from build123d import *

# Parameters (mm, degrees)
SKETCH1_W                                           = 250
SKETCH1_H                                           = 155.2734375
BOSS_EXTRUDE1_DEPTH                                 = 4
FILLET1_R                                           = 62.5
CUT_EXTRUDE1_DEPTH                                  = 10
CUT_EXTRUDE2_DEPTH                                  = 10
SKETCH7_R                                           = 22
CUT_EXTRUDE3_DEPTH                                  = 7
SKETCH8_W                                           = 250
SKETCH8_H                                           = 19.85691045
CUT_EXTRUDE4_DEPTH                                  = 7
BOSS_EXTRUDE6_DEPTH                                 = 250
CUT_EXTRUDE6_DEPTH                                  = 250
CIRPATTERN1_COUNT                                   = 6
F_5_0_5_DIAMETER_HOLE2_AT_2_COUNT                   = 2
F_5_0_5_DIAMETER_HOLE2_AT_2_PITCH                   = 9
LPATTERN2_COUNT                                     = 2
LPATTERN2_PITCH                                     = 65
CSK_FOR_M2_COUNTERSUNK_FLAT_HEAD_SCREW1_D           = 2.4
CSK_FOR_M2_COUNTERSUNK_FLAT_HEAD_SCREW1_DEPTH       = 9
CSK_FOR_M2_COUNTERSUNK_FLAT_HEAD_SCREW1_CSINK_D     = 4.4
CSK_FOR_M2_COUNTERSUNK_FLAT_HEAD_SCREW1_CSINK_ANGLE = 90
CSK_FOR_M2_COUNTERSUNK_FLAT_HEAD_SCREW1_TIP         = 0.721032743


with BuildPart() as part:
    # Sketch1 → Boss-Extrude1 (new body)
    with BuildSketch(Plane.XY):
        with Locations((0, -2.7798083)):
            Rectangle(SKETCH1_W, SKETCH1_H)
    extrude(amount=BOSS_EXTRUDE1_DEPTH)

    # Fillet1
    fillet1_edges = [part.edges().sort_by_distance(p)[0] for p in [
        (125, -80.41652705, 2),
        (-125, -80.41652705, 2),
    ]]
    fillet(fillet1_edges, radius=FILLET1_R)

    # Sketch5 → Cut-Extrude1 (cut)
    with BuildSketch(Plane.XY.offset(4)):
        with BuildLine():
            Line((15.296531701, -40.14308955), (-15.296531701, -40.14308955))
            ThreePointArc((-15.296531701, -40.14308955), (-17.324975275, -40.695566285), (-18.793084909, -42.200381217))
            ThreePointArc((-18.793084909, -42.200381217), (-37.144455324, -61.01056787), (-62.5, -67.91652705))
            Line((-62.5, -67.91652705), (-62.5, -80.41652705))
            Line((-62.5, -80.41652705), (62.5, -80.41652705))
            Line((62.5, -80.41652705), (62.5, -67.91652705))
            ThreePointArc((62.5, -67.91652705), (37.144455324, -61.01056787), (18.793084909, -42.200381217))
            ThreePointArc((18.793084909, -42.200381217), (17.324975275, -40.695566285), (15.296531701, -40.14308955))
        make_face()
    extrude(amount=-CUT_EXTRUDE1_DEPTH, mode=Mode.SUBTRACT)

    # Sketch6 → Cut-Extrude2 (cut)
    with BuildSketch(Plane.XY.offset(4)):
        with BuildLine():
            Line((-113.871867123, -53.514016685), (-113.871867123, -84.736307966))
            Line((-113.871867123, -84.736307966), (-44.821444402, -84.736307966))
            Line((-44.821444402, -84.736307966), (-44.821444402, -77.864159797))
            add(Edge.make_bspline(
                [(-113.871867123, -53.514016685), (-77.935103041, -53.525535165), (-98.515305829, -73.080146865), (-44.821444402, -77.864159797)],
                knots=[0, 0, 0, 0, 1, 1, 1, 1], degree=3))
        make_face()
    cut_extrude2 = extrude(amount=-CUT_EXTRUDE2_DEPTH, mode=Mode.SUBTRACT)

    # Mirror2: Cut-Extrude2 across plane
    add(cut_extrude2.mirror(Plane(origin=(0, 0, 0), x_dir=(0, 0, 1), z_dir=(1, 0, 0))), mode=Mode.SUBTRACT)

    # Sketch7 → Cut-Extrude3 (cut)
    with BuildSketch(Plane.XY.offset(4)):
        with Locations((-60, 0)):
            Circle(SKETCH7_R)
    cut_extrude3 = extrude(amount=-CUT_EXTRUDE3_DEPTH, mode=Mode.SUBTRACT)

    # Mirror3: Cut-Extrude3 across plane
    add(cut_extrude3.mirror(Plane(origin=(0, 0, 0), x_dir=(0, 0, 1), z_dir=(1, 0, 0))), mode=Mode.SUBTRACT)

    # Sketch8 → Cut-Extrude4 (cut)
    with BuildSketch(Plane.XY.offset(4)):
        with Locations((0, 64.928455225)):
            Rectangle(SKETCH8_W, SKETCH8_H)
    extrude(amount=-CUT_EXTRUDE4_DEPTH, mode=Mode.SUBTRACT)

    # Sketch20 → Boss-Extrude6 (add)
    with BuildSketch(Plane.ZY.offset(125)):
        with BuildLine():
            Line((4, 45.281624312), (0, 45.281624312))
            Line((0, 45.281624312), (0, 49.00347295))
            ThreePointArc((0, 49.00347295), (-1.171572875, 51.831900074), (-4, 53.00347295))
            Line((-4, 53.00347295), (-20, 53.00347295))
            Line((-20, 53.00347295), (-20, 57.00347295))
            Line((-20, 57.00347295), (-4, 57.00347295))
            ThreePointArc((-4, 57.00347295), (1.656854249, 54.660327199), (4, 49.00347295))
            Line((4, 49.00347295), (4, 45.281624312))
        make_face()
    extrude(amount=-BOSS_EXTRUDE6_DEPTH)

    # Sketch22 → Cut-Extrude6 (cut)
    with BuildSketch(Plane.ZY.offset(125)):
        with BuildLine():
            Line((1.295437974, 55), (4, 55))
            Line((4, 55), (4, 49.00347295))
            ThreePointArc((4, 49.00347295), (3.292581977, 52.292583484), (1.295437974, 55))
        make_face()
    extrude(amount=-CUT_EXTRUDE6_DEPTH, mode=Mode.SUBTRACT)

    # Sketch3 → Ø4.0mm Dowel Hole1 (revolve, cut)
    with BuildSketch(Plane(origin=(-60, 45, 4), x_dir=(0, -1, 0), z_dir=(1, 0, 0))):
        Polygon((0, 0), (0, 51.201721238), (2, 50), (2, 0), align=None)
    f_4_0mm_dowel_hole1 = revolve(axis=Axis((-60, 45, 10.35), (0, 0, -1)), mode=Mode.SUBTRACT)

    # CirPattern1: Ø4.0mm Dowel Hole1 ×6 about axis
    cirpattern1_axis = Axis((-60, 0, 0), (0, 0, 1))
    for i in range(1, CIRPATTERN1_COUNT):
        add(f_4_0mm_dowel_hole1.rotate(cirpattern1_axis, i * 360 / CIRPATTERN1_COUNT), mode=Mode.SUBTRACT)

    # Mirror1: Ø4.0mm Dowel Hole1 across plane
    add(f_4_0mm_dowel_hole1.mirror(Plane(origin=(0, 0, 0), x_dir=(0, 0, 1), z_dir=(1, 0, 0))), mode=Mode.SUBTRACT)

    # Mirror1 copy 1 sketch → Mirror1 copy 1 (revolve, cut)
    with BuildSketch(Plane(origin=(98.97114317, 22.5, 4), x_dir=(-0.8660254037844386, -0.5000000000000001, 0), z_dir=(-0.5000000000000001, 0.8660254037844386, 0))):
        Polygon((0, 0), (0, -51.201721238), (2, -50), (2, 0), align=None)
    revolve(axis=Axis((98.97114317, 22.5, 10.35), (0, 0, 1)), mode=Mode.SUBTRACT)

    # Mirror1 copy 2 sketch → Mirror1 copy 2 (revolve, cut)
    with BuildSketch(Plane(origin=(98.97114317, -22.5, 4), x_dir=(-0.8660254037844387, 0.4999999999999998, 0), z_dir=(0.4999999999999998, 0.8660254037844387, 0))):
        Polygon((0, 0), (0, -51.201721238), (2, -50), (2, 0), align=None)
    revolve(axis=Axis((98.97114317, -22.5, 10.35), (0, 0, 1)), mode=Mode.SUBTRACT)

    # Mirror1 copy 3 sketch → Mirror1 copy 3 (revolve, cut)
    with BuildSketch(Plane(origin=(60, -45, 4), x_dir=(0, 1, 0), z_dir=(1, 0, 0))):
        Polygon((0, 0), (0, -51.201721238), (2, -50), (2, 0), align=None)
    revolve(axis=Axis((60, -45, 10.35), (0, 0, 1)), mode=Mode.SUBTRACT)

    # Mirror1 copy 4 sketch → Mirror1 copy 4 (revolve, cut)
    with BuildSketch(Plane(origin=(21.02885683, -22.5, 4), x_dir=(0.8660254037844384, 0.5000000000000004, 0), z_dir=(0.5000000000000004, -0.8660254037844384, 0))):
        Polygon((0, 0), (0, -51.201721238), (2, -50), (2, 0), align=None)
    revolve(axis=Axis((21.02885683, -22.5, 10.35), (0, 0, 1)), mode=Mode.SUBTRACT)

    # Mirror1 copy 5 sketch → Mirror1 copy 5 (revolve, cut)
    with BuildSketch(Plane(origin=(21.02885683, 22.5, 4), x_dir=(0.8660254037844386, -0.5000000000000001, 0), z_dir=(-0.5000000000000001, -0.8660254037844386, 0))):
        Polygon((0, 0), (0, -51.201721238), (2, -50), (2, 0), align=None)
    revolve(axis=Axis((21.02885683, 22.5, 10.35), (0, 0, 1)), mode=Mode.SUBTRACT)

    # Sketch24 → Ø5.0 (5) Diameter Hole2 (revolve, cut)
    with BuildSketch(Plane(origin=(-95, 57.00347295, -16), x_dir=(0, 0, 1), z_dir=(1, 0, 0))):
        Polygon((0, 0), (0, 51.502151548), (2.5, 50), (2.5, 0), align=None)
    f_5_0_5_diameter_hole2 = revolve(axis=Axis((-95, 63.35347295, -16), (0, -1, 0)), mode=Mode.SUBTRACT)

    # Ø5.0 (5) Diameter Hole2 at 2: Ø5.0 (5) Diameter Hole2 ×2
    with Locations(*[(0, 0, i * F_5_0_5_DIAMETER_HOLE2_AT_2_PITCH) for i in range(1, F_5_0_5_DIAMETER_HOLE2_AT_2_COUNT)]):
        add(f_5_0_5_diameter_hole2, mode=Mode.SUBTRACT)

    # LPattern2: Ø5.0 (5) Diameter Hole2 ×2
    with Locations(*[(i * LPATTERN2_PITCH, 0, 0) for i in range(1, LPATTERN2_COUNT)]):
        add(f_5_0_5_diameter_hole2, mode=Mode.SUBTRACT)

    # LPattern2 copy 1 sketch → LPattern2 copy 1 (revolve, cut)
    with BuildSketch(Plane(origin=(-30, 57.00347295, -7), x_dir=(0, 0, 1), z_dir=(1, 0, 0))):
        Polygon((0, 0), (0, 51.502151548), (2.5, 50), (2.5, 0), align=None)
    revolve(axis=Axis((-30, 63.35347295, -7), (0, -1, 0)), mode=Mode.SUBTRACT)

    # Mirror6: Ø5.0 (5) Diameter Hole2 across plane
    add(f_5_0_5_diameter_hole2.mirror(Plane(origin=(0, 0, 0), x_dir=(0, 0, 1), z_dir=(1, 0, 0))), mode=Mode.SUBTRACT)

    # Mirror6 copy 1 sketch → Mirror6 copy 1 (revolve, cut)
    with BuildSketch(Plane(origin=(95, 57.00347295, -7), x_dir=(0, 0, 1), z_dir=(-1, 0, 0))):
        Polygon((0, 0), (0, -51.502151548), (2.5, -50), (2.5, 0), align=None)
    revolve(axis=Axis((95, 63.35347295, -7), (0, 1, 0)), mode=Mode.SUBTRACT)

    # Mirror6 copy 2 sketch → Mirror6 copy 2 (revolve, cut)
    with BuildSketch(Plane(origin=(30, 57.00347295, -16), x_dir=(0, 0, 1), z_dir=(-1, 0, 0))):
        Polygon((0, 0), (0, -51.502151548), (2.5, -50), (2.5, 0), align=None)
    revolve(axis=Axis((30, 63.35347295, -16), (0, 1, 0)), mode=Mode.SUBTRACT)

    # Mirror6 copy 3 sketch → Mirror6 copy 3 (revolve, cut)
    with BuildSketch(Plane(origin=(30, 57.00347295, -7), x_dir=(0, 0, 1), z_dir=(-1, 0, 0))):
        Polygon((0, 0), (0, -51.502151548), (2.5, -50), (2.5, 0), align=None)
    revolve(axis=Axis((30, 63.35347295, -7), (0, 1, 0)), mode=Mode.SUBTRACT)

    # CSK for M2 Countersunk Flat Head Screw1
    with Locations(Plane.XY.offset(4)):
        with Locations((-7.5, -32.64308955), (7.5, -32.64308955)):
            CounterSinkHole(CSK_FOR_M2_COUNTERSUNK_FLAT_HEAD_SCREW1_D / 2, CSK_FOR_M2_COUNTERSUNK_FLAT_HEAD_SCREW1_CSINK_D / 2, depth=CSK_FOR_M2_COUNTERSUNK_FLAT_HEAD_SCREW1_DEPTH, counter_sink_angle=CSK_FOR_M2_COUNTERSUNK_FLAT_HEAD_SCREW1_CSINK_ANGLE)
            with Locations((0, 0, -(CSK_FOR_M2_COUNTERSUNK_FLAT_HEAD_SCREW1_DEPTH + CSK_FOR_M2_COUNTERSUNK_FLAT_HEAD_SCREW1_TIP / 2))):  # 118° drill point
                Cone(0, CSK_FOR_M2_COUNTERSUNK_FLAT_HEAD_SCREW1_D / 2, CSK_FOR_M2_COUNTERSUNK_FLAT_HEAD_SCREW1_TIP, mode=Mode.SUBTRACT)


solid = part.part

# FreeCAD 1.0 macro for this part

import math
import FreeCAD as App
import Part
import Sketcher
from FreeCAD import Vector
Q = App.Units.Quantity


def edges_at(feature, points):
    """Names of the edges that pass closest to the given points."""
    edges = feature.Shape.Edges
    near = lambda p: min(range(len(edges)), key=lambda i: edges[i].distToShape(Part.Vertex(*p))[0])
    return sorted({f"Edge{near(p) + 1}" for p in points})

doc = App.newDocument("Part")
params = doc.addObject("Spreadsheet::Sheet", "Params")
for row, (alias, value) in enumerate([
    ("sketch1_width", "250 mm"),
    ("pad1_length", "4 mm"),
    ("fillet_radius", "62.5 mm"),
    ("sketch2_radius", "4 mm"),
    ("sketch2_radius2", "50 mm"),
    ("sketch2_width", "125 mm"),
    ("sketch2_height", "12.5 mm"),
    ("pocket1_length", "10 mm"),
    ("pocket2_length", "10 mm"),
    ("sketch4_diameter", "44 mm"),
    ("pocket3_length", "7 mm"),
    ("sketch5_width", "250 mm"),
    ("pocket4_length", "7 mm"),
    ("sketch6_radius", "8 mm"),
    ("sketch6_radius2", "4 mm"),
    ("sketch6_height", "16 mm"),
    ("pad2_length", "250 mm"),
    ("sketch7_radius", "8 mm"),
    ("pocket5_length", "250 mm"),
    ("sketch8_width", "2 mm"),
    ("sketch8_height", "50 mm"),
    ("groove_angle", "360 deg"),
    ("sketch9_width", "2 mm"),
    ("sketch9_height", "50 mm"),
    ("groove2_angle", "360 deg"),
    ("sketch10_width", "2 mm"),
    ("sketch10_height", "50 mm"),
    ("groove3_angle", "360 deg"),
    ("sketch11_width", "2 mm"),
    ("sketch11_height", "50 mm"),
    ("groove4_angle", "360 deg"),
    ("sketch12_width", "2 mm"),
    ("sketch12_height", "50 mm"),
    ("groove5_angle", "360 deg"),
    ("sketch13_width", "2 mm"),
    ("sketch13_height", "50 mm"),
    ("groove6_angle", "360 deg"),
    ("sketch14_width", "50 mm"),
    ("sketch14_height", "2.5 mm"),
    ("groove7_angle", "360 deg"),
    ("linearpattern_pitch", "9 mm"),
    ("linearpattern2_pitch", "65 mm"),
    ("sketch15_width", "50 mm"),
    ("sketch15_height", "2.5 mm"),
    ("groove8_angle", "360 deg"),
    ("sketch16_width", "50 mm"),
    ("sketch16_height", "2.5 mm"),
    ("groove9_angle", "360 deg"),
    ("sketch17_width", "50 mm"),
    ("sketch17_height", "2.5 mm"),
    ("groove10_angle", "360 deg"),
    ("sketch18_width", "50 mm"),
    ("sketch18_height", "2.5 mm"),
    ("groove11_angle", "360 deg"),
    ("sketch19_diameter", "2.4 mm"),
    ("hole_diameter", "2.4 mm"),
    ("hole_depth", "9 mm"),
    ("hole_csink_diameter", "4.4 mm"),
], start=1):
    params.set(f"A{row}", alias)
    params.set(f"B{row}", "=" + value)
    params.setAlias(f"B{row}", alias)

body = doc.addObject("PartDesign::Body", "Body")

# Sketch on XY plane
sketch1 = body.newObject("Sketcher::SketchObject", "Sketch")
sketch1.AttachmentSupport = (doc.getObject("XY_Plane"), [""])
sketch1.MapMode = "FlatFace"
sketch1.addGeometry(Part.LineSegment(Vector(-125, 74.85691, 0), Vector(-125, -80.416527, 0)), False)
sketch1.addGeometry(Part.LineSegment(Vector(-125, -80.416527, 0), Vector(125, -80.416527, 0)), False)
sketch1.addGeometry(Part.LineSegment(Vector(125, -80.416527, 0), Vector(125, 74.85691, 0)), False)
sketch1.addGeometry(Part.LineSegment(Vector(125, 74.85691, 0), Vector(-125, 74.85691, 0)), False)
sketch1.addConstraint(Sketcher.Constraint("Coincident", 0, 2, 1, 1))
sketch1.addConstraint(Sketcher.Constraint("Coincident", 1, 2, 2, 1))
sketch1.addConstraint(Sketcher.Constraint("Coincident", 2, 2, 3, 1))
sketch1.addConstraint(Sketcher.Constraint("Coincident", 3, 2, 0, 1))
sketch1.addConstraint(Sketcher.Constraint("Vertical", 0))
sketch1.addConstraint(Sketcher.Constraint("Horizontal", 1))
sketch1.addConstraint(Sketcher.Constraint("Vertical", 2))
sketch1.addConstraint(Sketcher.Constraint("Horizontal", 3))
sketch1.addConstraint(Sketcher.Constraint("DistanceX", 1, 1, 1, 2, Q("250 mm")))
sketch1.addConstraint(Sketcher.Constraint("DistanceX", 0, 2, -1, 1, Q("125 mm")))
sketch1.addConstraint(Sketcher.Constraint("DistanceY", 0, 2, 0, 1, Q("155.273438 mm")))
sketch1.addConstraint(Sketcher.Constraint("DistanceY", -1, 1, 2, 2, Q("74.85691 mm")))
sketch1.setExpression("Constraints[8]", "Params.sketch1_width")
pad1 = body.newObject("PartDesign::Pad", "Pad")
pad1.Profile = sketch1
pad1.setExpression("Length", "Params.pad1_length")
doc.recompute()

fillet = body.newObject("PartDesign::Fillet", "Fillet")
fillet.Base = (pad1, edges_at(pad1, [(125, -80.417, 2), (-125, -80.417, 2)]))
fillet.setExpression("Radius", "Params.fillet_radius")

# Sketch on XY plane
sketch2 = body.newObject("Sketcher::SketchObject", "Sketch001")
sketch2.AttachmentSupport = (doc.getObject("XY_Plane"), [""])
sketch2.MapMode = "FlatFace"
sketch2.AttachmentOffset = App.Placement(Vector(0, 0, 4), App.Rotation())
sketch2.addGeometry(Part.LineSegment(Vector(15.296532, -40.14309, 0), Vector(-15.296532, -40.14309, 0)), False)
sketch2.addGeometry(Part.ArcOfCircle(Part.Circle(Vector(-15.296532, -44.14309, 0), Vector(0, 0, 1), 4), math.radians(90), math.radians(150.943157)), False)
sketch2.addGeometry(Part.ArcOfCircle(Part.Circle(Vector(-62.5, -17.916527, 0), Vector(0, 0, 1), 50), math.radians(-90), math.radians(-29.056843)), False)
sketch2.addGeometry(Part.LineSegment(Vector(-62.5, -67.916527, 0), Vector(-62.5, -80.416527, 0)), False)
sketch2.addGeometry(Part.LineSegment(Vector(-62.5, -80.416527, 0), Vector(62.5, -80.416527, 0)), False)
sketch2.addGeometry(Part.LineSegment(Vector(62.5, -80.416527, 0), Vector(62.5, -67.916527, 0)), False)
sketch2.addGeometry(Part.ArcOfCircle(Part.Circle(Vector(62.5, -17.916527, 0), Vector(0, 0, 1), 50), math.radians(-150.943157), math.radians(-90)), False)
sketch2.addGeometry(Part.ArcOfCircle(Part.Circle(Vector(15.296532, -44.14309, 0), Vector(0, 0, 1), 4), math.radians(29.056843), math.radians(90)), False)
sketch2.addConstraint(Sketcher.Constraint("Tangent", 0, 2, 1, 1))
sketch2.addConstraint(Sketcher.Constraint("Tangent", 1, 2, 2, 2))
sketch2.addConstraint(Sketcher.Constraint("Coincident", 2, 1, 3, 1))
sketch2.addConstraint(Sketcher.Constraint("Coincident", 3, 2, 4, 1))
sketch2.addConstraint(Sketcher.Constraint("Coincident", 4, 2, 5, 1))
sketch2.addConstraint(Sketcher.Constraint("Coincident", 5, 2, 6, 2))
sketch2.addConstraint(Sketcher.Constraint("Tangent", 6, 1, 7, 1))
sketch2.addConstraint(Sketcher.Constraint("Tangent", 7, 2, 0, 1))
sketch2.addConstraint(Sketcher.Constraint("Horizontal", 0))
sketch2.addConstraint(Sketcher.Constraint("Vertical", 3))
sketch2.addConstraint(Sketcher.Constraint("Horizontal", 4))
sketch2.addConstraint(Sketcher.Constraint("Vertical", 5))
sketch2.addConstraint(Sketcher.Constraint("Equal", 2, 6))
sketch2.addConstraint(Sketcher.Constraint("Equal", 1, 7))
sketch2.addConstraint(Sketcher.Constraint("Symmetric", 2, 3, 6, 3, -2))
sketch2.addConstraint(Sketcher.Constraint("Vertical", 6, 3, 4, 2))
sketch2.addConstraint(Sketcher.Constraint("Radius", 1, Q("4 mm")))
sketch2.addConstraint(Sketcher.Constraint("Radius", 2, Q("50 mm")))
sketch2.addConstraint(Sketcher.Constraint("DistanceX", 4, 1, 4, 2, Q("125 mm")))
sketch2.addConstraint(Sketcher.Constraint("DistanceY", 3, 2, 3, 1, Q("12.5 mm")))
sketch2.addConstraint(Sketcher.Constraint("DistanceX", 2, 3, 6, 3, Q("125 mm")))
sketch2.addConstraint(Sketcher.Constraint("DistanceX", 0, 2, 0, 1, Q("30.593063 mm")))
sketch2.addConstraint(Sketcher.Constraint("DistanceY", 1, 3, -1, 1, Q("44.14309 mm")))
sketch2.setExpression("Constraints[16]", "Params.sketch2_radius")
sketch2.setExpression("Constraints[17]", "Params.sketch2_radius2")
sketch2.setExpression("Constraints[18]", "Params.sketch2_width")
sketch2.setExpression("Constraints[19]", "Params.sketch2_height")
pocket1 = body.newObject("PartDesign::Pocket", "Pocket")
pocket1.Profile = sketch2
pocket1.setExpression("Length", "Params.pocket1_length")

# Sketch on XY plane
sketch3 = body.newObject("Sketcher::SketchObject", "Sketch002")
sketch3.AttachmentSupport = (doc.getObject("XY_Plane"), [""])
sketch3.MapMode = "FlatFace"
sketch3.AttachmentOffset = App.Placement(Vector(0, 0, 4), App.Rotation())
sketch3.addGeometry(Part.LineSegment(Vector(-113.871867, -53.514017, 0), Vector(-113.871867, -84.736308, 0)), False)
sketch3.addGeometry(Part.LineSegment(Vector(-113.871867, -84.736308, 0), Vector(-44.821444, -84.736308, 0)), False)
sketch3.addGeometry(Part.LineSegment(Vector(-44.821444, -84.736308, 0), Vector(-44.821444, -77.86416, 0)), False)
sketch3.addGeometry(Part.BSplineCurve([Vector(-113.871867, -53.514017, 0), Vector(-77.935103, -53.525535, 0), Vector(-98.515306, -73.080147, 0), Vector(-44.821444, -77.86416, 0)], [4, 4], [0, 1], False, 3, [1, 1, 1, 1], False), False)
sketch3.addConstraint(Sketcher.Constraint("Block", 3))
sketch3.addConstraint(Sketcher.Constraint("Coincident", 0, 2, 1, 1))
sketch3.addConstraint(Sketcher.Constraint("Coincident", 1, 2, 2, 1))
sketch3.addConstraint(Sketcher.Constraint("Coincident", 2, 2, 3, 2))
sketch3.addConstraint(Sketcher.Constraint("Coincident", 3, 1, 0, 1))
sketch3.addConstraint(Sketcher.Constraint("Vertical", 0))
sketch3.addConstraint(Sketcher.Constraint("Horizontal", 1))
sketch3.addConstraint(Sketcher.Constraint("Vertical", 2))
sketch3.addConstraint(Sketcher.Constraint("DistanceY", 0, 2, 0, 1, Q("31.222291 mm")))
pocket2 = body.newObject("PartDesign::Pocket", "Pocket001")
pocket2.Profile = sketch3
pocket2.setExpression("Length", "Params.pocket2_length")
doc.recompute()

mirrored = body.newObject("PartDesign::Mirrored", "Mirrored")
mirrored.Originals = [pocket2]
mirrored.MirrorPlane = (doc.getObject("YZ_Plane"), [""])
body.Tip = mirrored

# Sketch on XY plane
sketch4 = body.newObject("Sketcher::SketchObject", "Sketch003")
sketch4.AttachmentSupport = (doc.getObject("XY_Plane"), [""])
sketch4.MapMode = "FlatFace"
sketch4.AttachmentOffset = App.Placement(Vector(0, 0, 4), App.Rotation())
sketch4.addGeometry(Part.Circle(Vector(-60, 0, 0), Vector(0, 0, 1), 22), False)
sketch4.addConstraint(Sketcher.Constraint("PointOnObject", 0, 3, -1))
sketch4.addConstraint(Sketcher.Constraint("Diameter", 0, Q("44 mm")))
sketch4.addConstraint(Sketcher.Constraint("DistanceX", 0, 3, -1, 1, Q("60 mm")))
sketch4.setExpression("Constraints[1]", "Params.sketch4_diameter")
pocket3 = body.newObject("PartDesign::Pocket", "Pocket002")
pocket3.Profile = sketch4
pocket3.setExpression("Length", "Params.pocket3_length")
doc.recompute()

mirrored2 = body.newObject("PartDesign::Mirrored", "Mirrored001")
mirrored2.Originals = [pocket3]
mirrored2.MirrorPlane = (doc.getObject("YZ_Plane"), [""])
body.Tip = mirrored2

# Sketch on XY plane
sketch5 = body.newObject("Sketcher::SketchObject", "Sketch004")
sketch5.AttachmentSupport = (doc.getObject("XY_Plane"), [""])
sketch5.MapMode = "FlatFace"
sketch5.AttachmentOffset = App.Placement(Vector(0, 0, 4), App.Rotation())
sketch5.addGeometry(Part.LineSegment(Vector(-125, 74.85691, 0), Vector(-125, 55, 0)), False)
sketch5.addGeometry(Part.LineSegment(Vector(-125, 55, 0), Vector(125, 55, 0)), False)
sketch5.addGeometry(Part.LineSegment(Vector(125, 55, 0), Vector(125, 74.85691, 0)), False)
sketch5.addGeometry(Part.LineSegment(Vector(125, 74.85691, 0), Vector(-125, 74.85691, 0)), False)
sketch5.addConstraint(Sketcher.Constraint("Coincident", 0, 2, 1, 1))
sketch5.addConstraint(Sketcher.Constraint("Coincident", 1, 2, 2, 1))
sketch5.addConstraint(Sketcher.Constraint("Coincident", 2, 2, 3, 1))
sketch5.addConstraint(Sketcher.Constraint("Coincident", 3, 2, 0, 1))
sketch5.addConstraint(Sketcher.Constraint("Vertical", 0))
sketch5.addConstraint(Sketcher.Constraint("Horizontal", 1))
sketch5.addConstraint(Sketcher.Constraint("Vertical", 2))
sketch5.addConstraint(Sketcher.Constraint("Horizontal", 3))
sketch5.addConstraint(Sketcher.Constraint("DistanceX", 1, 1, 1, 2, Q("250 mm")))
sketch5.addConstraint(Sketcher.Constraint("DistanceX", 0, 2, -1, 1, Q("125 mm")))
sketch5.addConstraint(Sketcher.Constraint("DistanceY", -1, 1, 0, 2, Q("55 mm")))
sketch5.addConstraint(Sketcher.Constraint("DistanceY", 0, 2, 0, 1, Q("19.85691 mm")))
sketch5.setExpression("Constraints[8]", "Params.sketch5_width")
pocket4 = body.newObject("PartDesign::Pocket", "Pocket003")
pocket4.Profile = sketch5
pocket4.setExpression("Length", "Params.pocket4_length")

# Sketch on YZ plane
sketch6 = body.newObject("Sketcher::SketchObject", "Sketch005")
sketch6.AttachmentSupport = (doc.getObject("YZ_Plane"), [""])
sketch6.MapMode = "FlatFace"
sketch6.AttachmentOffset = App.Placement(Vector(0, 0, -125), App.Rotation())
sketch6.addGeometry(Part.LineSegment(Vector(45.281624, 0, 0), Vector(45.281624, 4, 0)), False)
sketch6.addGeometry(Part.LineSegment(Vector(45.281624, 4, 0), Vector(49.003473, 4, 0)), False)
sketch6.addGeometry(Part.ArcOfCircle(Part.Circle(Vector(49.003473, -4, 0), Vector(0, 0, 1), 8), math.radians(0), math.radians(90)), False)
sketch6.addGeometry(Part.LineSegment(Vector(57.003473, -4, 0), Vector(57.003473, -20, 0)), False)
sketch6.addGeometry(Part.LineSegment(Vector(57.003473, -20, 0), Vector(53.003473, -20, 0)), False)
sketch6.addGeometry(Part.LineSegment(Vector(53.003473, -20, 0), Vector(53.003473, -4, 0)), False)
sketch6.addGeometry(Part.ArcOfCircle(Part.Circle(Vector(49.003473, -4, 0), Vector(0, 0, 1), 4), math.radians(0), math.radians(90)), False)
sketch6.addGeometry(Part.LineSegment(Vector(49.003473, 0, 0), Vector(45.281624, 0, 0)), False)
sketch6.addConstraint(Sketcher.Constraint("Coincident", 0, 2, 1, 1))
sketch6.addConstraint(Sketcher.Constraint("Tangent", 1, 2, 2, 2))
sketch6.addConstraint(Sketcher.Constraint("Tangent", 2, 1, 3, 1))
sketch6.addConstraint(Sketcher.Constraint("Coincident", 3, 2, 4, 1))
sketch6.addConstraint(Sketcher.Constraint("Coincident", 4, 2, 5, 1))
sketch6.addConstraint(Sketcher.Constraint("Tangent", 5, 2, 6, 1))
sketch6.addConstraint(Sketcher.Constraint("Tangent", 6, 2, 7, 1))
sketch6.addConstraint(Sketcher.Constraint("Coincident", 7, 2, 0, 1))
sketch6.addConstraint(Sketcher.Constraint("Vertical", 0))
sketch6.addConstraint(Sketcher.Constraint("Horizontal", 1))
sketch6.addConstraint(Sketcher.Constraint("Vertical", 3))
sketch6.addConstraint(Sketcher.Constraint("Horizontal", 4))
sketch6.addConstraint(Sketcher.Constraint("Vertical", 5))
sketch6.addConstraint(Sketcher.Constraint("Horizontal", 7))
sketch6.addConstraint(Sketcher.Constraint("Coincident", 6, 3, 2, 3))
sketch6.addConstraint(Sketcher.Constraint("PointOnObject", 6, 2, -1))
sketch6.addConstraint(Sketcher.Constraint("Radius", 2, Q("8 mm")))
sketch6.addConstraint(Sketcher.Constraint("Radius", 6, Q("4 mm")))
sketch6.addConstraint(Sketcher.Constraint("DistanceY", 3, 2, 3, 1, Q("16 mm")))
sketch6.addConstraint(Sketcher.Constraint("DistanceX", 1, 1, 1, 2, Q("3.721849 mm")))
sketch6.addConstraint(Sketcher.Constraint("DistanceX", -1, 1, 2, 3, Q("49.003473 mm")))
sketch6.setExpression("Constraints[16]", "Params.sketch6_radius")
sketch6.setExpression("Constraints[17]", "Params.sketch6_radius2")
sketch6.setExpression("Constraints[18]", "Params.sketch6_height")
pad2 = body.newObject("PartDesign::Pad", "Pad001")
pad2.Profile = sketch6
pad2.setExpression("Length", "Params.pad2_length")

# Sketch on YZ plane
sketch7 = body.newObject("Sketcher::SketchObject", "Sketch006")
sketch7.AttachmentSupport = (doc.getObject("YZ_Plane"), [""])
sketch7.MapMode = "FlatFace"
sketch7.AttachmentOffset = App.Placement(Vector(0, 0, -125), App.Rotation())
sketch7.addGeometry(Part.LineSegment(Vector(55, 4, 0), Vector(55, 1.295438, 0)), False)
sketch7.addGeometry(Part.ArcOfCircle(Part.Circle(Vector(49.003473, -4, 0), Vector(0, 0, 1), 8), math.radians(41.447213), math.radians(90)), False)
sketch7.addGeometry(Part.LineSegment(Vector(49.003473, 4, 0), Vector(55, 4, 0)), False)
sketch7.addConstraint(Sketcher.Constraint("Coincident", 0, 2, 1, 1))
sketch7.addConstraint(Sketcher.Constraint("Tangent", 1, 2, 2, 1))
sketch7.addConstraint(Sketcher.Constraint("Coincident", 2, 2, 0, 1))
sketch7.addConstraint(Sketcher.Constraint("Vertical", 0))
sketch7.addConstraint(Sketcher.Constraint("Horizontal", 2))
sketch7.addConstraint(Sketcher.Constraint("Radius", 1, Q("8 mm")))
sketch7.addConstraint(Sketcher.Constraint("DistanceY", 1, 3, -1, 1, Q("4 mm")))
sketch7.addConstraint(Sketcher.Constraint("DistanceX", -1, 1, 0, 2, Q("55 mm")))
sketch7.addConstraint(Sketcher.Constraint("DistanceX", 2, 1, 2, 2, Q("5.996527 mm")))
sketch7.setExpression("Constraints[5]", "Params.sketch7_radius")
pocket5 = body.newObject("PartDesign::Pocket", "Pocket004")
pocket5.Profile = sketch7
pocket5.setExpression("Length", "Params.pocket5_length")
pocket5.Reversed = True

# Sketch on YZ plane
sketch8 = body.newObject("Sketcher::SketchObject", "Sketch007")
sketch8.AttachmentSupport = (doc.getObject("YZ_Plane"), [""])
sketch8.MapMode = "FlatFace"
sketch8.AttachmentOffset = App.Placement(Vector(0, 0, -60), App.Rotation())
sketch8.addGeometry(Part.LineSegment(Vector(45, -47.201721, 0), Vector(45, 4, 0)), False)
sketch8.addGeometry(Part.LineSegment(Vector(45, 4, 0), Vector(43, 4, 0)), False)
sketch8.addGeometry(Part.LineSegment(Vector(43, 4, 0), Vector(43, -46, 0)), False)
sketch8.addGeometry(Part.LineSegment(Vector(43, -46, 0), Vector(45, -47.201721, 0)), False)
sketch8.addGeometry(Part.LineSegment(Vector(45, 4, 0), Vector(45, -47.201721, 0)), True)  # axis
sketch8.addConstraint(Sketcher.Constraint("Coincident", 0, 2, 1, 1))
sketch8.addConstraint(Sketcher.Constraint("Coincident", 1, 2, 2, 1))
sketch8.addConstraint(Sketcher.Constraint("Coincident", 2, 2, 3, 1))
sketch8.addConstraint(Sketcher.Constraint("Coincident", 3, 2, 0, 1))
sketch8.addConstraint(Sketcher.Constraint("Vertical", 0))
sketch8.addConstraint(Sketcher.Constraint("Horizontal", 1))
sketch8.addConstraint(Sketcher.Constraint("Vertical", 2))
sketch8.addConstraint(Sketcher.Constraint("Vertical", 4))
sketch8.addConstraint(Sketcher.Constraint("Coincident", 4, 1, 0, 2))
sketch8.addConstraint(Sketcher.Constraint("Equal", 0, 4))
sketch8.addConstraint(Sketcher.Constraint("DistanceX", 1, 2, 1, 1, Q("2 mm")))
sketch8.addConstraint(Sketcher.Constraint("DistanceY", 2, 2, 2, 1, Q("50 mm")))
sketch8.addConstraint(Sketcher.Constraint("Angle", 3, Q("-31 deg")))
sketch8.addConstraint(Sketcher.Constraint("DistanceX", -1, 1, 0, 2, Q("45 mm")))
sketch8.addConstraint(Sketcher.Constraint("DistanceY", -1, 1, 0, 2, Q("4 mm")))
sketch8.setExpression("Constraints[10]", "Params.sketch8_width")
sketch8.setExpression("Constraints[11]", "Params.sketch8_height")
groove = body.newObject("PartDesign::Groove", "Groove")
groove.Profile = sketch8
groove.ReferenceAxis = (sketch8, ["Axis0"])
groove.setExpression("Angle", "Params.groove_angle")
doc.recompute()

datumline = body.newObject("PartDesign::Line", "DatumLine")
datumline.Placement = App.Placement(Vector(-60, 0, 0), App.Rotation(Vector(0, 0, 1), Vector(0, 0, 1)))
polarpattern = body.newObject("PartDesign::PolarPattern", "PolarPattern")
polarpattern.Originals = [groove]
polarpattern.Axis = (datumline, [""])
polarpattern.Angle = 360
polarpattern.Occurrences = 6
body.Tip = polarpattern
doc.recompute()

mirrored3 = body.newObject("PartDesign::Mirrored", "Mirrored002")
mirrored3.Originals = [groove]
mirrored3.MirrorPlane = (doc.getObject("YZ_Plane"), [""])
body.Tip = mirrored3

# Sketch on an angled plane
sketch9 = body.newObject("Sketcher::SketchObject", "Sketch008")
sketch9.Placement = App.Placement(Vector(98.971143, 22.5, 4), App.Rotation(Vector(-0.866025404, -0.5, 0), Vector(0, 0, 1), Vector(-0.5, 0.866025404, 0), "ZXY"))
sketch9.addGeometry(Part.LineSegment(Vector(0, 0, 0), Vector(0, -51.201721, 0)), False)
sketch9.addGeometry(Part.LineSegment(Vector(0, -51.201721, 0), Vector(2, -50, 0)), False)
sketch9.addGeometry(Part.LineSegment(Vector(2, -50, 0), Vector(2, 0, 0)), False)
sketch9.addGeometry(Part.LineSegment(Vector(2, 0, 0), Vector(0, 0, 0)), False)
sketch9.addConstraint(Sketcher.Constraint("Coincident", 0, 2, 1, 1))
sketch9.addConstraint(Sketcher.Constraint("Coincident", 1, 2, 2, 1))
sketch9.addConstraint(Sketcher.Constraint("Coincident", 2, 2, 3, 1))
sketch9.addConstraint(Sketcher.Constraint("Coincident", 3, 2, 0, 1))
sketch9.addConstraint(Sketcher.Constraint("Vertical", 0))
sketch9.addConstraint(Sketcher.Constraint("Vertical", 2))
sketch9.addConstraint(Sketcher.Constraint("Horizontal", 3))
sketch9.addConstraint(Sketcher.Constraint("Coincident", 3, 2, -1, 1))
sketch9.addConstraint(Sketcher.Constraint("DistanceX", 3, 2, 3, 1, Q("2 mm")))
sketch9.addConstraint(Sketcher.Constraint("DistanceY", 2, 1, 2, 2, Q("50 mm")))
sketch9.addConstraint(Sketcher.Constraint("Angle", 1, Q("31 deg")))
sketch9.setExpression("Constraints[8]", "Params.sketch9_width")
sketch9.setExpression("Constraints[9]", "Params.sketch9_height")
groove2 = body.newObject("PartDesign::Groove", "Groove001")
groove2.Profile = sketch9
groove2.ReferenceAxis = (sketch9, ["V_Axis"])
groove2.setExpression("Angle", "Params.groove2_angle")

# Sketch on an angled plane
sketch10 = body.newObject("Sketcher::SketchObject", "Sketch009")
sketch10.Placement = App.Placement(Vector(98.971143, -22.5, 4), App.Rotation(Vector(-0.866025404, 0.5, 0), Vector(0, 0, 1), Vector(0.5, 0.866025404, 0), "ZXY"))
sketch10.addGeometry(Part.LineSegment(Vector(0, 0, 0), Vector(0, -51.201721, 0)), False)
sketch10.addGeometry(Part.LineSegment(Vector(0, -51.201721, 0), Vector(2, -50, 0)), False)
sketch10.addGeometry(Part.LineSegment(Vector(2, -50, 0), Vector(2, 0, 0)), False)
sketch10.addGeometry(Part.LineSegment(Vector(2, 0, 0), Vector(0, 0, 0)), False)
sketch10.addConstraint(Sketcher.Constraint("Coincident", 0, 2, 1, 1))
sketch10.addConstraint(Sketcher.Constraint("Coincident", 1, 2, 2, 1))
sketch10.addConstraint(Sketcher.Constraint("Coincident", 2, 2, 3, 1))
sketch10.addConstraint(Sketcher.Constraint("Coincident", 3, 2, 0, 1))
sketch10.addConstraint(Sketcher.Constraint("Vertical", 0))
sketch10.addConstraint(Sketcher.Constraint("Vertical", 2))
sketch10.addConstraint(Sketcher.Constraint("Horizontal", 3))
sketch10.addConstraint(Sketcher.Constraint("Coincident", 3, 2, -1, 1))
sketch10.addConstraint(Sketcher.Constraint("DistanceX", 3, 2, 3, 1, Q("2 mm")))
sketch10.addConstraint(Sketcher.Constraint("DistanceY", 2, 1, 2, 2, Q("50 mm")))
sketch10.addConstraint(Sketcher.Constraint("Angle", 1, Q("31 deg")))
sketch10.setExpression("Constraints[8]", "Params.sketch10_width")
sketch10.setExpression("Constraints[9]", "Params.sketch10_height")
groove3 = body.newObject("PartDesign::Groove", "Groove002")
groove3.Profile = sketch10
groove3.ReferenceAxis = (sketch10, ["V_Axis"])
groove3.setExpression("Angle", "Params.groove3_angle")

# Sketch on YZ plane
sketch11 = body.newObject("Sketcher::SketchObject", "Sketch010")
sketch11.AttachmentSupport = (doc.getObject("YZ_Plane"), [""])
sketch11.MapMode = "FlatFace"
sketch11.AttachmentOffset = App.Placement(Vector(0, 0, 60), App.Rotation())
sketch11.addGeometry(Part.LineSegment(Vector(-45, 4, 0), Vector(-45, -47.201721, 0)), False)
sketch11.addGeometry(Part.LineSegment(Vector(-45, -47.201721, 0), Vector(-43, -46, 0)), False)
sketch11.addGeometry(Part.LineSegment(Vector(-43, -46, 0), Vector(-43, 4, 0)), False)
sketch11.addGeometry(Part.LineSegment(Vector(-43, 4, 0), Vector(-45, 4, 0)), False)
sketch11.addGeometry(Part.LineSegment(Vector(-45, -47.201721, 0), Vector(-45, 4, 0)), True)  # axis
sketch11.addConstraint(Sketcher.Constraint("Coincident", 0, 2, 1, 1))
sketch11.addConstraint(Sketcher.Constraint("Coincident", 1, 2, 2, 1))
sketch11.addConstraint(Sketcher.Constraint("Coincident", 2, 2, 3, 1))
sketch11.addConstraint(Sketcher.Constraint("Coincident", 3, 2, 0, 1))
sketch11.addConstraint(Sketcher.Constraint("Vertical", 0))
sketch11.addConstraint(Sketcher.Constraint("Vertical", 2))
sketch11.addConstraint(Sketcher.Constraint("Horizontal", 3))
sketch11.addConstraint(Sketcher.Constraint("Vertical", 4))
sketch11.addConstraint(Sketcher.Constraint("Coincident", 4, 1, 0, 2))
sketch11.addConstraint(Sketcher.Constraint("Horizontal", 2, 2, 4, 2))
sketch11.addConstraint(Sketcher.Constraint("DistanceX", 3, 2, 3, 1, Q("2 mm")))
sketch11.addConstraint(Sketcher.Constraint("DistanceY", 2, 1, 2, 2, Q("50 mm")))
sketch11.addConstraint(Sketcher.Constraint("Angle", 1, Q("31 deg")))
sketch11.addConstraint(Sketcher.Constraint("DistanceX", 0, 2, -1, 1, Q("45 mm")))
sketch11.addConstraint(Sketcher.Constraint("DistanceY", 1, 2, -1, 1, Q("46 mm")))
sketch11.setExpression("Constraints[10]", "Params.sketch11_width")
sketch11.setExpression("Constraints[11]", "Params.sketch11_height")
groove4 = body.newObject("PartDesign::Groove", "Groove003")
groove4.Profile = sketch11
groove4.ReferenceAxis = (sketch11, ["Axis0"])
groove4.setExpression("Angle", "Params.groove4_angle")

# Sketch on an angled plane
sketch12 = body.newObject("Sketcher::SketchObject", "Sketch011")
sketch12.Placement = App.Placement(Vector(21.028857, -22.5, 4), App.Rotation(Vector(0.866025404, 0.5, 0), Vector(0, 0, 1), Vector(0.5, -0.866025404, 0), "ZXY"))
sketch12.addGeometry(Part.LineSegment(Vector(0, 0, 0), Vector(0, -51.201721, 0)), False)
sketch12.addGeometry(Part.LineSegment(Vector(0, -51.201721, 0), Vector(2, -50, 0)), False)
sketch12.addGeometry(Part.LineSegment(Vector(2, -50, 0), Vector(2, 0, 0)), False)
sketch12.addGeometry(Part.LineSegment(Vector(2, 0, 0), Vector(0, 0, 0)), False)
sketch12.addConstraint(Sketcher.Constraint("Coincident", 0, 2, 1, 1))
sketch12.addConstraint(Sketcher.Constraint("Coincident", 1, 2, 2, 1))
sketch12.addConstraint(Sketcher.Constraint("Coincident", 2, 2, 3, 1))
sketch12.addConstraint(Sketcher.Constraint("Coincident", 3, 2, 0, 1))
sketch12.addConstraint(Sketcher.Constraint("Vertical", 0))
sketch12.addConstraint(Sketcher.Constraint("Vertical", 2))
sketch12.addConstraint(Sketcher.Constraint("Horizontal", 3))
sketch12.addConstraint(Sketcher.Constraint("Coincident", 3, 2, -1, 1))
sketch12.addConstraint(Sketcher.Constraint("DistanceX", 3, 2, 3, 1, Q("2 mm")))
sketch12.addConstraint(Sketcher.Constraint("DistanceY", 2, 1, 2, 2, Q("50 mm")))
sketch12.addConstraint(Sketcher.Constraint("Angle", 1, Q("31 deg")))
sketch12.setExpression("Constraints[8]", "Params.sketch12_width")
sketch12.setExpression("Constraints[9]", "Params.sketch12_height")
groove5 = body.newObject("PartDesign::Groove", "Groove004")
groove5.Profile = sketch12
groove5.ReferenceAxis = (sketch12, ["V_Axis"])
groove5.setExpression("Angle", "Params.groove5_angle")

# Sketch on an angled plane
sketch13 = body.newObject("Sketcher::SketchObject", "Sketch012")
sketch13.Placement = App.Placement(Vector(21.028857, 22.5, 4), App.Rotation(Vector(0.866025404, -0.5, 0), Vector(0, 0, 1), Vector(-0.5, -0.866025404, 0), "ZXY"))
sketch13.addGeometry(Part.LineSegment(Vector(0, 0, 0), Vector(0, -51.201721, 0)), False)
sketch13.addGeometry(Part.LineSegment(Vector(0, -51.201721, 0), Vector(2, -50, 0)), False)
sketch13.addGeometry(Part.LineSegment(Vector(2, -50, 0), Vector(2, 0, 0)), False)
sketch13.addGeometry(Part.LineSegment(Vector(2, 0, 0), Vector(0, 0, 0)), False)
sketch13.addConstraint(Sketcher.Constraint("Coincident", 0, 2, 1, 1))
sketch13.addConstraint(Sketcher.Constraint("Coincident", 1, 2, 2, 1))
sketch13.addConstraint(Sketcher.Constraint("Coincident", 2, 2, 3, 1))
sketch13.addConstraint(Sketcher.Constraint("Coincident", 3, 2, 0, 1))
sketch13.addConstraint(Sketcher.Constraint("Vertical", 0))
sketch13.addConstraint(Sketcher.Constraint("Vertical", 2))
sketch13.addConstraint(Sketcher.Constraint("Horizontal", 3))
sketch13.addConstraint(Sketcher.Constraint("Coincident", 3, 2, -1, 1))
sketch13.addConstraint(Sketcher.Constraint("DistanceX", 3, 2, 3, 1, Q("2 mm")))
sketch13.addConstraint(Sketcher.Constraint("DistanceY", 2, 1, 2, 2, Q("50 mm")))
sketch13.addConstraint(Sketcher.Constraint("Angle", 1, Q("31 deg")))
sketch13.setExpression("Constraints[8]", "Params.sketch13_width")
sketch13.setExpression("Constraints[9]", "Params.sketch13_height")
groove6 = body.newObject("PartDesign::Groove", "Groove005")
groove6.Profile = sketch13
groove6.ReferenceAxis = (sketch13, ["V_Axis"])
groove6.setExpression("Angle", "Params.groove6_angle")

# Sketch on YZ plane
sketch14 = body.newObject("Sketcher::SketchObject", "Sketch013")
sketch14.AttachmentSupport = (doc.getObject("YZ_Plane"), [""])
sketch14.MapMode = "FlatFace"
sketch14.AttachmentOffset = App.Placement(Vector(0, 0, -95), App.Rotation())
sketch14.addGeometry(Part.LineSegment(Vector(5.501321, -16, 0), Vector(57.003473, -16, 0)), False)
sketch14.addGeometry(Part.LineSegment(Vector(57.003473, -16, 0), Vector(57.003473, -13.5, 0)), False)
sketch14.addGeometry(Part.LineSegment(Vector(57.003473, -13.5, 0), Vector(7.003473, -13.5, 0)), False)
sketch14.addGeometry(Part.LineSegment(Vector(7.003473, -13.5, 0), Vector(5.501321, -16, 0)), False)
sketch14.addGeometry(Part.LineSegment(Vector(57.003473, -16, 0), Vector(5.501321, -16, 0)), True)  # axis
sketch14.addConstraint(Sketcher.Constraint("Coincident", 0, 2, 1, 1))
sketch14.addConstraint(Sketcher.Constraint("Coincident", 1, 2, 2, 1))
sketch14.addConstraint(Sketcher.Constraint("Coincident", 2, 2, 3, 1))
sketch14.addConstraint(Sketcher.Constraint("Coincident", 3, 2, 0, 1))
sketch14.addConstraint(Sketcher.Constraint("Horizontal", 0))
sketch14.addConstraint(Sketcher.Constraint("Vertical", 1))
sketch14.addConstraint(Sketcher.Constraint("Horizontal", 2))
sketch14.addConstraint(Sketcher.Constraint("Horizontal", 4))
sketch14.addConstraint(Sketcher.Constraint("Coincident", 4, 1, 0, 2))
sketch14.addConstraint(Sketcher.Constraint("Equal", 0, 4))
sketch14.addConstraint(Sketcher.Constraint("DistanceX", 2, 2, 2, 1, Q("50 mm")))
sketch14.addConstraint(Sketcher.Constraint("Angle", 3, Q("-121 deg")))
sketch14.addConstraint(Sketcher.Constraint("DistanceY", 1, 1, 1, 2, Q("2.5 mm")))
sketch14.addConstraint(Sketcher.Constraint("DistanceY", 0, 2, -1, 1, Q("16 mm")))
sketch14.addConstraint(Sketcher.Constraint("DistanceX", -1, 1, 3, 2, Q("5.501321 mm")))
sketch14.setExpression("Constraints[10]", "Params.sketch14_width")
sketch14.setExpression("Constraints[12]", "Params.sketch14_height")
groove7 = body.newObject("PartDesign::Groove", "Groove006")
groove7.Profile = sketch14
groove7.ReferenceAxis = (sketch14, ["Axis0"])
groove7.setExpression("Angle", "Params.groove7_angle")
doc.recompute()

linearpattern = body.newObject("PartDesign::LinearPattern", "LinearPattern")
linearpattern.Originals = [groove7]
linearpattern.Direction = (doc.getObject("Z_Axis"), [""])
linearpattern.Mode = "offset"
linearpattern.setExpression("Offset", "Params.linearpattern_pitch")
linearpattern.Occurrences = 2
body.Tip = linearpattern
doc.recompute()

linearpattern2 = body.newObject("PartDesign::LinearPattern", "LinearPattern001")
linearpattern2.Originals = [groove7]
linearpattern2.Direction = (doc.getObject("X_Axis"), [""])
linearpattern2.Mode = "offset"
linearpattern2.setExpression("Offset", "Params.linearpattern2_pitch")
linearpattern2.Occurrences = 2
body.Tip = linearpattern2

# Sketch on YZ plane
sketch15 = body.newObject("Sketcher::SketchObject", "Sketch014")
sketch15.AttachmentSupport = (doc.getObject("YZ_Plane"), [""])
sketch15.MapMode = "FlatFace"
sketch15.AttachmentOffset = App.Placement(Vector(0, 0, -30), App.Rotation())
sketch15.addGeometry(Part.LineSegment(Vector(5.501321, -7, 0), Vector(57.003473, -7, 0)), False)
sketch15.addGeometry(Part.LineSegment(Vector(57.003473, -7, 0), Vector(57.003473, -4.5, 0)), False)
sketch15.addGeometry(Part.LineSegment(Vector(57.003473, -4.5, 0), Vector(7.003473, -4.5, 0)), False)
sketch15.addGeometry(Part.LineSegment(Vector(7.003473, -4.5, 0), Vector(5.501321, -7, 0)), False)
sketch15.addGeometry(Part.LineSegment(Vector(57.003473, -7, 0), Vector(5.501321, -7, 0)), True)  # axis
sketch15.addConstraint(Sketcher.Constraint("Coincident", 0, 2, 1, 1))
sketch15.addConstraint(Sketcher.Constraint("Coincident", 1, 2, 2, 1))
sketch15.addConstraint(Sketcher.Constraint("Coincident", 2, 2, 3, 1))
sketch15.addConstraint(Sketcher.Constraint("Coincident", 3, 2, 0, 1))
sketch15.addConstraint(Sketcher.Constraint("Horizontal", 0))
sketch15.addConstraint(Sketcher.Constraint("Vertical", 1))
sketch15.addConstraint(Sketcher.Constraint("Horizontal", 2))
sketch15.addConstraint(Sketcher.Constraint("Horizontal", 4))
sketch15.addConstraint(Sketcher.Constraint("Coincident", 4, 1, 0, 2))
sketch15.addConstraint(Sketcher.Constraint("Equal", 0, 4))
sketch15.addConstraint(Sketcher.Constraint("DistanceX", 2, 2, 2, 1, Q("50 mm")))
sketch15.addConstraint(Sketcher.Constraint("Angle", 3, Q("-121 deg")))
sketch15.addConstraint(Sketcher.Constraint("DistanceY", 1, 1, 1, 2, Q("2.5 mm")))
sketch15.addConstraint(Sketcher.Constraint("DistanceY", 0, 2, -1, 1, Q("7 mm")))
sketch15.addConstraint(Sketcher.Constraint("DistanceX", -1, 1, 3, 2, Q("5.501321 mm")))
sketch15.setExpression("Constraints[10]", "Params.sketch15_width")
sketch15.setExpression("Constraints[12]", "Params.sketch15_height")
groove8 = body.newObject("PartDesign::Groove", "Groove007")
groove8.Profile = sketch15
groove8.ReferenceAxis = (sketch15, ["Axis0"])
groove8.setExpression("Angle", "Params.groove8_angle")
doc.recompute()

mirrored4 = body.newObject("PartDesign::Mirrored", "Mirrored003")
mirrored4.Originals = [groove7]
mirrored4.MirrorPlane = (doc.getObject("YZ_Plane"), [""])
body.Tip = mirrored4

# Sketch on YZ plane
sketch16 = body.newObject("Sketcher::SketchObject", "Sketch015")
sketch16.AttachmentSupport = (doc.getObject("YZ_Plane"), [""])
sketch16.MapMode = "FlatFace"
sketch16.AttachmentOffset = App.Placement(Vector(0, 0, 95), App.Rotation())
sketch16.addGeometry(Part.LineSegment(Vector(57.003473, -7, 0), Vector(5.501321, -7, 0)), False)
sketch16.addGeometry(Part.LineSegment(Vector(5.501321, -7, 0), Vector(7.003473, -4.5, 0)), False)
sketch16.addGeometry(Part.LineSegment(Vector(7.003473, -4.5, 0), Vector(57.003473, -4.5, 0)), False)
sketch16.addGeometry(Part.LineSegment(Vector(57.003473, -4.5, 0), Vector(57.003473, -7, 0)), False)
sketch16.addGeometry(Part.LineSegment(Vector(5.501321, -7, 0), Vector(57.003473, -7, 0)), True)  # axis
sketch16.addConstraint(Sketcher.Constraint("Coincident", 0, 2, 1, 1))
sketch16.addConstraint(Sketcher.Constraint("Coincident", 1, 2, 2, 1))
sketch16.addConstraint(Sketcher.Constraint("Coincident", 2, 2, 3, 1))
sketch16.addConstraint(Sketcher.Constraint("Coincident", 3, 2, 0, 1))
sketch16.addConstraint(Sketcher.Constraint("Horizontal", 0))
sketch16.addConstraint(Sketcher.Constraint("Horizontal", 2))
sketch16.addConstraint(Sketcher.Constraint("Vertical", 3))
sketch16.addConstraint(Sketcher.Constraint("Horizontal", 4))
sketch16.addConstraint(Sketcher.Constraint("Coincident", 4, 1, 0, 2))
sketch16.addConstraint(Sketcher.Constraint("Vertical", 2, 2, 4, 2))
sketch16.addConstraint(Sketcher.Constraint("DistanceX", 2, 1, 2, 2, Q("50 mm")))
sketch16.addConstraint(Sketcher.Constraint("Angle", 1, Q("59 deg")))
sketch16.addConstraint(Sketcher.Constraint("DistanceY", 3, 2, 3, 1, Q("2.5 mm")))
sketch16.addConstraint(Sketcher.Constraint("DistanceY", 0, 2, -1, 1, Q("7 mm")))
sketch16.addConstraint(Sketcher.Constraint("DistanceX", -1, 1, 0, 2, Q("5.501321 mm")))
sketch16.setExpression("Constraints[10]", "Params.sketch16_width")
sketch16.setExpression("Constraints[12]", "Params.sketch16_height")
groove9 = body.newObject("PartDesign::Groove", "Groove008")
groove9.Profile = sketch16
groove9.ReferenceAxis = (sketch16, ["Axis0"])
groove9.setExpression("Angle", "Params.groove9_angle")

# Sketch on YZ plane
sketch17 = body.newObject("Sketcher::SketchObject", "Sketch016")
sketch17.AttachmentSupport = (doc.getObject("YZ_Plane"), [""])
sketch17.MapMode = "FlatFace"
sketch17.AttachmentOffset = App.Placement(Vector(0, 0, 30), App.Rotation())
sketch17.addGeometry(Part.LineSegment(Vector(57.003473, -16, 0), Vector(5.501321, -16, 0)), False)
sketch17.addGeometry(Part.LineSegment(Vector(5.501321, -16, 0), Vector(7.003473, -13.5, 0)), False)
sketch17.addGeometry(Part.LineSegment(Vector(7.003473, -13.5, 0), Vector(57.003473, -13.5, 0)), False)
sketch17.addGeometry(Part.LineSegment(Vector(57.003473, -13.5, 0), Vector(57.003473, -16, 0)), False)
sketch17.addGeometry(Part.LineSegment(Vector(5.501321, -16, 0), Vector(57.003473, -16, 0)), True)  # axis
sketch17.addConstraint(Sketcher.Constraint("Coincident", 0, 2, 1, 1))
sketch17.addConstraint(Sketcher.Constraint("Coincident", 1, 2, 2, 1))
sketch17.addConstraint(Sketcher.Constraint("Coincident", 2, 2, 3, 1))
sketch17.addConstraint(Sketcher.Constraint("Coincident", 3, 2, 0, 1))
sketch17.addConstraint(Sketcher.Constraint("Horizontal", 0))
sketch17.addConstraint(Sketcher.Constraint("Horizontal", 2))
sketch17.addConstraint(Sketcher.Constraint("Vertical", 3))
sketch17.addConstraint(Sketcher.Constraint("Horizontal", 4))
sketch17.addConstraint(Sketcher.Constraint("Coincident", 4, 1, 0, 2))
sketch17.addConstraint(Sketcher.Constraint("Vertical", 2, 2, 4, 2))
sketch17.addConstraint(Sketcher.Constraint("DistanceX", 2, 1, 2, 2, Q("50 mm")))
sketch17.addConstraint(Sketcher.Constraint("Angle", 1, Q("59 deg")))
sketch17.addConstraint(Sketcher.Constraint("DistanceY", 3, 2, 3, 1, Q("2.5 mm")))
sketch17.addConstraint(Sketcher.Constraint("DistanceY", 0, 2, -1, 1, Q("16 mm")))
sketch17.addConstraint(Sketcher.Constraint("DistanceX", -1, 1, 0, 2, Q("5.501321 mm")))
sketch17.setExpression("Constraints[10]", "Params.sketch17_width")
sketch17.setExpression("Constraints[12]", "Params.sketch17_height")
groove10 = body.newObject("PartDesign::Groove", "Groove009")
groove10.Profile = sketch17
groove10.ReferenceAxis = (sketch17, ["Axis0"])
groove10.setExpression("Angle", "Params.groove10_angle")

# Sketch on YZ plane
sketch18 = body.newObject("Sketcher::SketchObject", "Sketch017")
sketch18.AttachmentSupport = (doc.getObject("YZ_Plane"), [""])
sketch18.MapMode = "FlatFace"
sketch18.AttachmentOffset = App.Placement(Vector(0, 0, 30), App.Rotation())
sketch18.addGeometry(Part.LineSegment(Vector(57.003473, -7, 0), Vector(5.501321, -7, 0)), False)
sketch18.addGeometry(Part.LineSegment(Vector(5.501321, -7, 0), Vector(7.003473, -4.5, 0)), False)
sketch18.addGeometry(Part.LineSegment(Vector(7.003473, -4.5, 0), Vector(57.003473, -4.5, 0)), False)
sketch18.addGeometry(Part.LineSegment(Vector(57.003473, -4.5, 0), Vector(57.003473, -7, 0)), False)
sketch18.addGeometry(Part.LineSegment(Vector(5.501321, -7, 0), Vector(57.003473, -7, 0)), True)  # axis
sketch18.addConstraint(Sketcher.Constraint("Coincident", 0, 2, 1, 1))
sketch18.addConstraint(Sketcher.Constraint("Coincident", 1, 2, 2, 1))
sketch18.addConstraint(Sketcher.Constraint("Coincident", 2, 2, 3, 1))
sketch18.addConstraint(Sketcher.Constraint("Coincident", 3, 2, 0, 1))
sketch18.addConstraint(Sketcher.Constraint("Horizontal", 0))
sketch18.addConstraint(Sketcher.Constraint("Horizontal", 2))
sketch18.addConstraint(Sketcher.Constraint("Vertical", 3))
sketch18.addConstraint(Sketcher.Constraint("Horizontal", 4))
sketch18.addConstraint(Sketcher.Constraint("Coincident", 4, 1, 0, 2))
sketch18.addConstraint(Sketcher.Constraint("Vertical", 2, 2, 4, 2))
sketch18.addConstraint(Sketcher.Constraint("DistanceX", 2, 1, 2, 2, Q("50 mm")))
sketch18.addConstraint(Sketcher.Constraint("Angle", 1, Q("59 deg")))
sketch18.addConstraint(Sketcher.Constraint("DistanceY", 3, 2, 3, 1, Q("2.5 mm")))
sketch18.addConstraint(Sketcher.Constraint("DistanceY", 0, 2, -1, 1, Q("7 mm")))
sketch18.addConstraint(Sketcher.Constraint("DistanceX", -1, 1, 0, 2, Q("5.501321 mm")))
sketch18.setExpression("Constraints[10]", "Params.sketch18_width")
sketch18.setExpression("Constraints[12]", "Params.sketch18_height")
groove11 = body.newObject("PartDesign::Groove", "Groove010")
groove11.Profile = sketch18
groove11.ReferenceAxis = (sketch18, ["Axis0"])
groove11.setExpression("Angle", "Params.groove11_angle")

# Sketch on XY plane
sketch19 = body.newObject("Sketcher::SketchObject", "Sketch018")
sketch19.AttachmentSupport = (doc.getObject("XY_Plane"), [""])
sketch19.MapMode = "FlatFace"
sketch19.AttachmentOffset = App.Placement(Vector(0, 0, 4), App.Rotation())
sketch19.addGeometry(Part.Circle(Vector(-7.5, -32.64309, 0), Vector(0, 0, 1), 1.2), False)
sketch19.addGeometry(Part.Circle(Vector(7.5, -32.64309, 0), Vector(0, 0, 1), 1.2), False)
sketch19.addConstraint(Sketcher.Constraint("Equal", 0, 1))
sketch19.addConstraint(Sketcher.Constraint("Symmetric", 0, 3, 1, 3, -2))
sketch19.addConstraint(Sketcher.Constraint("Diameter", 0, Q("2.4 mm")))
sketch19.addConstraint(Sketcher.Constraint("DistanceX", 0, 3, 1, 3, Q("15 mm")))
sketch19.addConstraint(Sketcher.Constraint("DistanceY", 0, 3, -1, 1, Q("32.64309 mm")))
sketch19.setExpression("Constraints[2]", "Params.sketch19_diameter")
doc.recompute()
hole = body.newObject("PartDesign::Hole", "Hole")
hole.Profile = sketch19
hole.ThreadType = "None"
hole.setExpression("Diameter", "Params.hole_diameter")
hole.DepthType = "Dimension"
hole.setExpression("Depth", "Params.hole_depth")
hole.DrillPoint = "Angled"
hole.DrillPointAngle = 118
hole.HoleCutType = "Countersink"
hole.setExpression("HoleCutDiameter", "Params.hole_csink_diameter")
hole.HoleCutCountersinkAngle = 90

doc.recompute()
